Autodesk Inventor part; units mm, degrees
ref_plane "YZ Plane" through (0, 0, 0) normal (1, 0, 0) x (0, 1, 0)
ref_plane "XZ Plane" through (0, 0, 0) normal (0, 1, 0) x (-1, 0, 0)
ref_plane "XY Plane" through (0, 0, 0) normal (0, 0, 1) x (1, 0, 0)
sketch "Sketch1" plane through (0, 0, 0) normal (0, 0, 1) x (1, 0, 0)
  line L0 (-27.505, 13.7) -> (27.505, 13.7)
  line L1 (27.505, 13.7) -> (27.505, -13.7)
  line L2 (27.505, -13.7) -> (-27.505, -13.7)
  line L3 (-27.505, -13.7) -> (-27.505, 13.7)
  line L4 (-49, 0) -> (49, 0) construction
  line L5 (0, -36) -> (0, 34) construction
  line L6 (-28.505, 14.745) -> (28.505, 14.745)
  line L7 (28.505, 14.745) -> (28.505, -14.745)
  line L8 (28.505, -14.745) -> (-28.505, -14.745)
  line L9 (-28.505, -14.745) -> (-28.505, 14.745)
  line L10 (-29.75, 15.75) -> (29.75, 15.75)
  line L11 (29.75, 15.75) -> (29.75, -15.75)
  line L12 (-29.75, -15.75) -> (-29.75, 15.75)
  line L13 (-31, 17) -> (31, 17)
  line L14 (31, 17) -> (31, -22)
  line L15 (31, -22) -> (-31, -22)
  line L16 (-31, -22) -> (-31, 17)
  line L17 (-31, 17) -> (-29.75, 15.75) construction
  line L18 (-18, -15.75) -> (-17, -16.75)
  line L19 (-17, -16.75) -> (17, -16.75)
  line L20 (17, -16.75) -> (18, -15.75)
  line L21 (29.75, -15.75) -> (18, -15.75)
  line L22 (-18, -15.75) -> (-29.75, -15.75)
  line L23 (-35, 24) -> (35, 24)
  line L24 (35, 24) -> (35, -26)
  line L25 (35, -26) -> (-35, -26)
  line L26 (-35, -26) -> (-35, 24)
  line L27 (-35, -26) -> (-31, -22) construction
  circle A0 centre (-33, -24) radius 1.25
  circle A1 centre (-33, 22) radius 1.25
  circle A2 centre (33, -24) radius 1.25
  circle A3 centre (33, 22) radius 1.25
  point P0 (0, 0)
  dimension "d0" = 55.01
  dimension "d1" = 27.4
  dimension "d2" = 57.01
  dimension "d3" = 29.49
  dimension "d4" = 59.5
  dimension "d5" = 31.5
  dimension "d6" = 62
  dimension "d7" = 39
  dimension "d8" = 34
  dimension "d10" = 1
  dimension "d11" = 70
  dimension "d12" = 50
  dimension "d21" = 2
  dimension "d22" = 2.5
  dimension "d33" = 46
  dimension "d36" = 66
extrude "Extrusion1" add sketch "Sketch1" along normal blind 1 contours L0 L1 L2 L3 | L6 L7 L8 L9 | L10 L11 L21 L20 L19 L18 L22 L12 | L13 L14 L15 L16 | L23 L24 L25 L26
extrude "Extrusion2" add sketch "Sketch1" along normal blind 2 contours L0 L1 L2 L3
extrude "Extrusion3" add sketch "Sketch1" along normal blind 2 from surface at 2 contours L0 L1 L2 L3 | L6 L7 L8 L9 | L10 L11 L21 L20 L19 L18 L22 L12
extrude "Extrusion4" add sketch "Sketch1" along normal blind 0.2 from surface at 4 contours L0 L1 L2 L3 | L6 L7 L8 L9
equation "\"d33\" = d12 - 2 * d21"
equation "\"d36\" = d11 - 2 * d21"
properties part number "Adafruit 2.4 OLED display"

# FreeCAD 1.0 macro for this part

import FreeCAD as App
import Part
import Sketcher
Q = App.Units.Quantity


def add_polygon(sketch, points):
    """Adds a closed chain of lines whose ends are joined by coincident constraints."""
    first, n = sketch.GeometryCount, len(points)
    for a, b in zip(points, points[1:] + points[:1]):
        sketch.addGeometry(Part.LineSegment(App.Vector(*a, 0), App.Vector(*b, 0)), False)
    for i in range(n):
        sketch.addConstraint(Sketcher.Constraint("Coincident", first + i, 2, first + (i + 1) % n, 1))

doc = App.newDocument("Part")
params = doc.addObject("Spreadsheet::Sheet", "Params")
for row, (alias, value) in enumerate([
    ("sketch1_diameter", "2.5 mm"),
    ("sketch1_width", "70 mm"),
    ("sketch1_height", "50 mm"),
    ("pad1_length", "1 mm"),
    ("sketch2_height", "27.4 mm"),
    ("sketch2_width", "55.01 mm"),
    ("pad2_length", "2 mm"),
    ("sketch3_width", "34 mm"),
    ("sketch3_width2", "59.5 mm"),
    ("sketch3_height", "31.5 mm"),
    ("pad3_length", "2 mm"),
    ("sketch4_width", "57.01 mm"),
    ("sketch4_height", "29.49 mm"),
    ("pad4_length", "0.2 mm"),
], start=1):
    params.set(f"A{row}", alias)
    params.set(f"B{row}", "=" + value)
    params.setAlias(f"B{row}", alias)

body = doc.addObject("PartDesign::Body", "Body")

# Sketch on XY plane
sketch1 = doc.addObject("Sketcher::SketchObject", "Sketch")
body.addObject(sketch1)
sketch1.AttachmentSupport = (doc.XY_Plane, [""])
sketch1.MapMode = "FlatFace"
add_polygon(sketch1, [(35, 24), (-35, 24), (-35, -26), (35, -26)])  # lines 0-3
sketch1.addGeometry(Part.Circle(App.Vector(-33, -24, 0), App.Vector(0, 0, 1), 1.25), False)  # 4
sketch1.addGeometry(Part.Circle(App.Vector(33, -24, 0), App.Vector(0, 0, 1), 1.25), False)  # 5
sketch1.addGeometry(Part.Circle(App.Vector(-33, 22, 0), App.Vector(0, 0, 1), 1.25), False)  # 6
sketch1.addGeometry(Part.Circle(App.Vector(33, 22, 0), App.Vector(0, 0, 1), 1.25), False)  # 7
sketch1.addConstraint(Sketcher.Constraint("Horizontal", 0))
sketch1.addConstraint(Sketcher.Constraint("Vertical", 1))
sketch1.addConstraint(Sketcher.Constraint("Horizontal", 2))
sketch1.addConstraint(Sketcher.Constraint("Vertical", 3))
sketch1.addConstraint(Sketcher.Constraint("Equal", 4, 5))
sketch1.addConstraint(Sketcher.Constraint("Equal", 5, 6))
sketch1.addConstraint(Sketcher.Constraint("Equal", 6, 7))
sketch1.addConstraint(Sketcher.Constraint("Symmetric", 4, 3, 5, 3, -2))
sketch1.addConstraint(Sketcher.Constraint("Symmetric", 6, 3, 7, 3, -2))
sketch1.addConstraint(Sketcher.Constraint("Vertical", 4, 3, 6, 3))
sketch1.addConstraint(Sketcher.Constraint("Diameter", 4, Q("2.5 mm")))
sketch1.addConstraint(Sketcher.Constraint("DistanceX", 0, 2, 0, 1, Q("70 mm")))
sketch1.addConstraint(Sketcher.Constraint("DistanceY", 1, 2, 1, 1, Q("50 mm")))
sketch1.addConstraint(Sketcher.Constraint("DistanceX", 4, 3, 5, 3, Q("66 mm")))
sketch1.addConstraint(Sketcher.Constraint("DistanceY", 4, 3, 6, 3, Q("46 mm")))
sketch1.addConstraint(Sketcher.Constraint("DistanceX", 0, 2, 6, 3, Q("2 mm")))
sketch1.addConstraint(Sketcher.Constraint("DistanceY", 6, 3, 0, 2, Q("2 mm")))
sketch1.addConstraint(Sketcher.Constraint("DistanceY", 4, 3, -1, 1, Q("24 mm")))
sketch1.setExpression("Constraints[14]", "Params.sketch1_diameter")
sketch1.setExpression("Constraints[15]", "Params.sketch1_width")
sketch1.setExpression("Constraints[16]", "Params.sketch1_height")
pad1 = doc.addObject("PartDesign::Pad", "Pad")
body.addObject(pad1)
pad1.Profile = sketch1
pad1.setExpression("Length", "Params.pad1_length")

# Sketch on XY plane
sketch2 = doc.addObject("Sketcher::SketchObject", "Sketch001")
body.addObject(sketch2)
sketch2.AttachmentSupport = (doc.XY_Plane, [""])
sketch2.MapMode = "FlatFace"
add_polygon(sketch2, [(27.505, 13.7), (-27.505, 13.7), (-27.505, -13.7), (27.505, -13.7)])  # lines 0-3
sketch2.addConstraint(Sketcher.Constraint("Horizontal", 0))
sketch2.addConstraint(Sketcher.Constraint("Vertical", 1))
sketch2.addConstraint(Sketcher.Constraint("Horizontal", 2))
sketch2.addConstraint(Sketcher.Constraint("Vertical", 3))
sketch2.addConstraint(Sketcher.Constraint("Symmetric", 0, 2, 2, 2, -1, 1))
sketch2.addConstraint(Sketcher.Constraint("DistanceY", 1, 2, 1, 1, Q("27.4 mm")))
sketch2.addConstraint(Sketcher.Constraint("DistanceX", 0, 2, 0, 1, Q("55.01 mm")))
sketch2.setExpression("Constraints[9]", "Params.sketch2_height")
sketch2.setExpression("Constraints[10]", "Params.sketch2_width")
pad2 = doc.addObject("PartDesign::Pad", "Pad001")
body.addObject(pad2)
pad2.Profile = sketch2
pad2.setExpression("Length", "Params.pad2_length")

# Sketch on XY plane
sketch3 = doc.addObject("Sketcher::SketchObject", "Sketch002")
body.addObject(sketch3)
sketch3.AttachmentSupport = (doc.XY_Plane, [""])
sketch3.MapMode = "FlatFace"
sketch3.AttachmentOffset = App.Placement(App.Vector(0, 0, 2), App.Rotation())
add_polygon(sketch3, [(29.75, 15.75), (-29.75, 15.75), (-29.75, -15.75), (-18, -15.75), (-17, -16.75), (17, -16.75), (18, -15.75), (29.75, -15.75)])  # lines 0-7
sketch3.addConstraint(Sketcher.Constraint("Horizontal", 0))
sketch3.addConstraint(Sketcher.Constraint("Vertical", 1))
sketch3.addConstraint(Sketcher.Constraint("Horizontal", 2))
sketch3.addConstraint(Sketcher.Constraint("Horizontal", 4))
sketch3.addConstraint(Sketcher.Constraint("Horizontal", 6))
sketch3.addConstraint(Sketcher.Constraint("Vertical", 7))
sketch3.addConstraint(Sketcher.Constraint("Symmetric", 0, 2, 6, 2, -1, 1))
sketch3.addConstraint(Sketcher.Constraint("Symmetric", 2, 2, 5, 2, -2))
sketch3.addConstraint(Sketcher.Constraint("Perpendicular", 3, 5))
sketch3.addConstraint(Sketcher.Constraint("Equal", 3, 5))
sketch3.addConstraint(Sketcher.Constraint("DistanceX", 4, 1, 4, 2, Q("34 mm")))
sketch3.addConstraint(Sketcher.Constraint("DistanceX", 0, 2, 0, 1, Q("59.5 mm")))
sketch3.addConstraint(Sketcher.Constraint("DistanceY", 1, 2, 1, 1, Q("31.5 mm")))
sketch3.addConstraint(Sketcher.Constraint("DistanceX", 2, 2, 3, 2, Q("1 mm")))
sketch3.setExpression("Constraints[18]", "Params.sketch3_width")
sketch3.setExpression("Constraints[19]", "Params.sketch3_width2")
sketch3.setExpression("Constraints[20]", "Params.sketch3_height")
pad3 = doc.addObject("PartDesign::Pad", "Pad002")
body.addObject(pad3)
pad3.Profile = sketch3
pad3.setExpression("Length", "Params.pad3_length")

# Sketch on XY plane
sketch4 = doc.addObject("Sketcher::SketchObject", "Sketch003")
body.addObject(sketch4)
sketch4.AttachmentSupport = (doc.XY_Plane, [""])
sketch4.MapMode = "FlatFace"
sketch4.AttachmentOffset = App.Placement(App.Vector(0, 0, 4), App.Rotation())
add_polygon(sketch4, [(28.505, 14.745), (-28.505, 14.745), (-28.505, -14.745), (28.505, -14.745)])  # lines 0-3
sketch4.addConstraint(Sketcher.Constraint("Horizontal", 0))
sketch4.addConstraint(Sketcher.Constraint("Vertical", 1))
sketch4.addConstraint(Sketcher.Constraint("Horizontal", 2))
sketch4.addConstraint(Sketcher.Constraint("Vertical", 3))
sketch4.addConstraint(Sketcher.Constraint("Symmetric", 0, 2, 2, 2, -1, 1))
sketch4.addConstraint(Sketcher.Constraint("DistanceX", 0, 2, 0, 1, Q("57.01 mm")))
sketch4.addConstraint(Sketcher.Constraint("DistanceY", 1, 2, 1, 1, Q("29.49 mm")))
sketch4.setExpression("Constraints[9]", "Params.sketch4_width")
sketch4.setExpression("Constraints[10]", "Params.sketch4_height")
pad4 = doc.addObject("PartDesign::Pad", "Pad003")
body.addObject(pad4)
pad4.Profile = sketch4
pad4.setExpression("Length", "Params.pad4_length")

doc.recompute()
